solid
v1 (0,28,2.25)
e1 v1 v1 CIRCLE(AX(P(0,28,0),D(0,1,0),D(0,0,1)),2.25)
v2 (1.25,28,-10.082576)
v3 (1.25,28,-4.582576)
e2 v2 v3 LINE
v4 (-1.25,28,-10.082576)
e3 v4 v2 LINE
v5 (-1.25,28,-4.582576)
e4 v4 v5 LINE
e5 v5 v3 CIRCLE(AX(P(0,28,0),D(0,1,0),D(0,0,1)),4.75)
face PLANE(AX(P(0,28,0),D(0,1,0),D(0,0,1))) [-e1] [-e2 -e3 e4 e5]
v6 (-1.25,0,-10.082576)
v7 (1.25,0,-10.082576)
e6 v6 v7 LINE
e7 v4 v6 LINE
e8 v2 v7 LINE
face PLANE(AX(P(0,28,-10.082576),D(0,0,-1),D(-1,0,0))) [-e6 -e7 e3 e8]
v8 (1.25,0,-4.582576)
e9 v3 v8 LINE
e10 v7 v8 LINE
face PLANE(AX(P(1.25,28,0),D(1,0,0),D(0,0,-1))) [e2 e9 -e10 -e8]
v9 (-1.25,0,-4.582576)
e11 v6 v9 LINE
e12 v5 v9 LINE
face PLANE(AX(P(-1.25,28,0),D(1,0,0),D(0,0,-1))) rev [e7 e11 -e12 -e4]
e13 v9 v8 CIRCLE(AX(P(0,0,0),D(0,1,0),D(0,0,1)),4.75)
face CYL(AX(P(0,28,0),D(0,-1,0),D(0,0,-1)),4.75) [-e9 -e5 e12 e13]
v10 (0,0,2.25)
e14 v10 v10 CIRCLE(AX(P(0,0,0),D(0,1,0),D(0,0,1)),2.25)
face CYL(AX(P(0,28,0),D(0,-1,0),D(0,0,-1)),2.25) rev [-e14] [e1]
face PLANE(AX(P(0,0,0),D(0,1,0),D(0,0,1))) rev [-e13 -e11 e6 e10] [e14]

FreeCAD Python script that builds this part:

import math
import FreeCAD as App
import Part
import Sketcher

doc = App.newDocument("Part")
body = doc.addObject("PartDesign::Body", "Body")

# Sketch on XZ plane
sketch1 = body.newObject("Sketcher::SketchObject", "Sketch")
sketch1.AttachmentSupport = (doc.getObject("XZ_Plane"), [""])
sketch1.MapMode = "FlatFace"
sketch1.addGeometry(Part.LineSegment(App.Vector(1.2, -10.1, 0), App.Vector(-1.2, -10.1, 0)), False)
sketch1.addGeometry(Part.LineSegment(App.Vector(-1.2, -10.1, 0), App.Vector(-1.2, -4.6, 0)), False)
sketch1.addGeometry(Part.ArcOfCircle(Part.Circle(App.Vector(0, 0, 0), App.Vector(0, 0, 1), 4.8), math.radians(0), math.radians(255)), False)
sketch1.addGeometry(Part.ArcOfCircle(Part.Circle(App.Vector(0, 0, 0), App.Vector(0, 0, 1), 4.7), math.radians(-75), math.radians(0)), False)
sketch1.addGeometry(Part.LineSegment(App.Vector(1.2, -4.6, 0), App.Vector(1.2, -10.1, 0)), False)
sketch1.addGeometry(Part.Circle(App.Vector(0, 0, 0), App.Vector(0, 0, 1), 2.2), False)
sketch1.addConstraint(Sketcher.Constraint("Coincident", 0, 2, 1, 1))
sketch1.addConstraint(Sketcher.Constraint("Coincident", 1, 2, 2, 2))
sketch1.addConstraint(Sketcher.Constraint("Tangent", 2, 1, 3, 2))
sketch1.addConstraint(Sketcher.Constraint("Coincident", 3, 1, 4, 1))
sketch1.addConstraint(Sketcher.Constraint("Coincident", 4, 2, 0, 1))
sketch1.addConstraint(Sketcher.Constraint("Horizontal", 0))
sketch1.addConstraint(Sketcher.Constraint("Vertical", 1))
sketch1.addConstraint(Sketcher.Constraint("Vertical", 4))
sketch1.addConstraint(Sketcher.Constraint("Coincident", 2, 3, -1, 1))
sketch1.addConstraint(Sketcher.Constraint("Coincident", 5, 3, -1, 1))
sketch1.addConstraint(Sketcher.Constraint("Equal", 2, 3))
sketch1.addConstraint(Sketcher.Constraint("PointOnObject", 2, 1, -1))
sketch1.addConstraint(Sketcher.Constraint("Horizontal", 1, 2, 3, 1))
sketch1.addConstraint(Sketcher.Constraint("Diameter", 5, 4.5))
sketch1.addConstraint(Sketcher.Constraint("Radius", 2, 4.75))
sketch1.addConstraint(Sketcher.Constraint("DistanceX", 0, 2, 0, 1, 2.5))
sketch1.addConstraint(Sketcher.Constraint("DistanceY", 1, 1, 1, 2, 5.5))
pad1 = body.newObject("PartDesign::Pad", "Pad")
pad1.Profile = sketch1
pad1.Length = 28
pad1.Reversed = True

doc.recompute()
